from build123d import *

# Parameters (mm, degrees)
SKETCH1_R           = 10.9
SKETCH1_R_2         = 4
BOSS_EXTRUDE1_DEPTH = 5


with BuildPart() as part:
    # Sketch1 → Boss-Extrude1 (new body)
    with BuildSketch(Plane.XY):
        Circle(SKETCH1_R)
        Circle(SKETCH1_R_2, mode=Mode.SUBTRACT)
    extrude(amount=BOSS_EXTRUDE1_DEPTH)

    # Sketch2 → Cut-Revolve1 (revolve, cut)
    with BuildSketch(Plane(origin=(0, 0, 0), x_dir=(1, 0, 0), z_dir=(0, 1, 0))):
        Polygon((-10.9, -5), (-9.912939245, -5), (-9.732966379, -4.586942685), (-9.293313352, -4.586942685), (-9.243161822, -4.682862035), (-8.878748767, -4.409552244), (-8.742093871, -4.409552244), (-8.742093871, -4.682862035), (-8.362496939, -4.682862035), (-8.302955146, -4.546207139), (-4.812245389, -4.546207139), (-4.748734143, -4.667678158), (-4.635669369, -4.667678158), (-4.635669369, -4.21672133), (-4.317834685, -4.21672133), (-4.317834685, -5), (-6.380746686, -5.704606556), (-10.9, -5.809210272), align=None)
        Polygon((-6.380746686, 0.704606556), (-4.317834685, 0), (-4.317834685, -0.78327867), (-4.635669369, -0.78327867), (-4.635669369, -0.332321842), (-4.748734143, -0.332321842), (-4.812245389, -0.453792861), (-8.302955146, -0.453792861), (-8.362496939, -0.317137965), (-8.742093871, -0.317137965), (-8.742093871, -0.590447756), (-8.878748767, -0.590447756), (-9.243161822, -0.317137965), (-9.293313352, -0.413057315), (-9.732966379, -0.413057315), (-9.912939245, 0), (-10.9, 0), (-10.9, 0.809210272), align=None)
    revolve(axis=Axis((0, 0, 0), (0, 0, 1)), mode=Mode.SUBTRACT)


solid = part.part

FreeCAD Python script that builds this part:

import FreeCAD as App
import Part
import Sketcher

V = App.Vector

doc = App.newDocument("Part")
body = doc.addObject("PartDesign::Body", "Body")

# Sketch on XY plane
sketch1 = body.newObject("Sketcher::SketchObject", "Sketch")
sketch1.AttachmentSupport = (doc.getObject("XY_Plane"), [""])
sketch1.MapMode = "FlatFace"
sketch1.addGeometry([
    Part.Circle(V(0, 0, 0), V(0, 0, 1), 10.9),
    Part.Circle(V(0, 0, 0), V(0, 0, 1), 4),
], False)
sketch1.addConstraint([
    Sketcher.Constraint("Coincident", 0, 3, -1, 1),
    Sketcher.Constraint("Coincident", 1, 3, -1, 1),
    Sketcher.Constraint("Diameter", 1, 8.0),
    Sketcher.Constraint("Diameter", 0, 21.8),
])
pad1 = body.newObject("PartDesign::Pad", "Pad")
pad1.Profile = sketch1
pad1.Length = 5

# Sketch on XZ plane
sketch2 = body.newObject("Sketcher::SketchObject", "Sketch001")
sketch2.AttachmentSupport = (doc.getObject("XZ_Plane"), [""])
sketch2.MapMode = "FlatFace"
sketch2.addGeometry([
    Part.LineSegment(V(-9.912939, 5, 0), V(-10.9, 5, 0)),  # 0
    Part.LineSegment(V(-10.9, 5, 0), V(-10.9, 5.80921, 0)),  # 1
    Part.LineSegment(V(-10.9, 5.80921, 0), V(-6.380747, 5.704607, 0)),  # 2
    Part.LineSegment(V(-6.380747, 5.704607, 0), V(-4.317835, 5, 0)),  # 3
    Part.LineSegment(V(-4.317835, 5, 0), V(-4.317835, 4.216721, 0)),  # 4
    Part.LineSegment(V(-4.317835, 4.216721, 0), V(-4.635669, 4.216721, 0)),  # 5
    Part.LineSegment(V(-4.635669, 4.216721, 0), V(-4.635669, 4.667678, 0)),  # 6
    Part.LineSegment(V(-4.635669, 4.667678, 0), V(-4.748734, 4.667678, 0)),  # 7
    Part.LineSegment(V(-4.748734, 4.667678, 0), V(-4.812245, 4.546207, 0)),  # 8
    Part.LineSegment(V(-4.812245, 4.546207, 0), V(-8.302955, 4.546207, 0)),  # 9
    Part.LineSegment(V(-8.302955, 4.546207, 0), V(-8.362497, 4.682862, 0)),  # 10
    Part.LineSegment(V(-8.362497, 4.682862, 0), V(-8.742094, 4.682862, 0)),  # 11
    Part.LineSegment(V(-8.742094, 4.682862, 0), V(-8.742094, 4.409552, 0)),  # 12
    Part.LineSegment(V(-8.742094, 4.409552, 0), V(-8.878749, 4.409552, 0)),  # 13
    Part.LineSegment(V(-8.878749, 4.409552, 0), V(-9.243162, 4.682862, 0)),  # 14
    Part.LineSegment(V(-9.243162, 4.682862, 0), V(-9.293313, 4.586943, 0)),  # 15
    Part.LineSegment(V(-9.293313, 4.586943, 0), V(-9.732966, 4.586943, 0)),  # 16
    Part.LineSegment(V(-9.732966, 4.586943, 0), V(-9.912939, 5, 0)),  # 17
    Part.LineSegment(V(-4.317835, 0, 0), V(-6.380747, -0.704607, 0)),  # 18
    Part.LineSegment(V(-6.380747, -0.704607, 0), V(-10.9, -0.80921, 0)),  # 19
    Part.LineSegment(V(-10.9, -0.80921, 0), V(-10.9, 0, 0)),  # 20
    Part.LineSegment(V(-10.9, 0, 0), V(-9.912939, 0, 0)),  # 21
    Part.LineSegment(V(-9.912939, 0, 0), V(-9.732966, 0.413057, 0)),  # 22
    Part.LineSegment(V(-9.732966, 0.413057, 0), V(-9.293313, 0.413057, 0)),  # 23
    Part.LineSegment(V(-9.293313, 0.413057, 0), V(-9.243162, 0.317138, 0)),  # 24
    Part.LineSegment(V(-9.243162, 0.317138, 0), V(-8.878749, 0.590448, 0)),  # 25
    Part.LineSegment(V(-8.878749, 0.590448, 0), V(-8.742094, 0.590448, 0)),  # 26
    Part.LineSegment(V(-8.742094, 0.590448, 0), V(-8.742094, 0.317138, 0)),  # 27
    Part.LineSegment(V(-8.742094, 0.317138, 0), V(-8.362497, 0.317138, 0)),  # 28
    Part.LineSegment(V(-8.362497, 0.317138, 0), V(-8.302955, 0.453793, 0)),  # 29
    Part.LineSegment(V(-8.302955, 0.453793, 0), V(-4.812245, 0.453793, 0)),  # 30
    Part.LineSegment(V(-4.812245, 0.453793, 0), V(-4.748734, 0.332322, 0)),  # 31
    Part.LineSegment(V(-4.748734, 0.332322, 0), V(-4.635669, 0.332322, 0)),  # 32
    Part.LineSegment(V(-4.635669, 0.332322, 0), V(-4.635669, 0.783279, 0)),  # 33
    Part.LineSegment(V(-4.635669, 0.783279, 0), V(-4.317835, 0.783279, 0)),  # 34
    Part.LineSegment(V(-4.317835, 0.783279, 0), V(-4.317835, 0, 0)),  # 35
], False)
sketch2.addConstraint([
    Sketcher.Constraint("Coincident", 0, 2, 1, 1),
    Sketcher.Constraint("Coincident", 1, 2, 2, 1),
    Sketcher.Constraint("Coincident", 2, 2, 3, 1),
    Sketcher.Constraint("Coincident", 3, 2, 4, 1),
    Sketcher.Constraint("Coincident", 4, 2, 5, 1),
    Sketcher.Constraint("Coincident", 5, 2, 6, 1),
    Sketcher.Constraint("Coincident", 6, 2, 7, 1),
    Sketcher.Constraint("Coincident", 7, 2, 8, 1),
    Sketcher.Constraint("Coincident", 8, 2, 9, 1),
    Sketcher.Constraint("Coincident", 9, 2, 10, 1),
    Sketcher.Constraint("Coincident", 10, 2, 11, 1),
    Sketcher.Constraint("Coincident", 11, 2, 12, 1),
    Sketcher.Constraint("Coincident", 12, 2, 13, 1),
    Sketcher.Constraint("Coincident", 13, 2, 14, 1),
    Sketcher.Constraint("Coincident", 14, 2, 15, 1),
    Sketcher.Constraint("Coincident", 15, 2, 16, 1),
    Sketcher.Constraint("Coincident", 16, 2, 17, 1),
    Sketcher.Constraint("Coincident", 17, 2, 0, 1),
    Sketcher.Constraint("Coincident", 18, 2, 19, 1),
    Sketcher.Constraint("Coincident", 19, 2, 20, 1),
    Sketcher.Constraint("Coincident", 20, 2, 21, 1),
    Sketcher.Constraint("Coincident", 21, 2, 22, 1),
    Sketcher.Constraint("Coincident", 22, 2, 23, 1),
    Sketcher.Constraint("Coincident", 23, 2, 24, 1),
    Sketcher.Constraint("Coincident", 24, 2, 25, 1),
    Sketcher.Constraint("Coincident", 25, 2, 26, 1),
    Sketcher.Constraint("Coincident", 26, 2, 27, 1),
    Sketcher.Constraint("Coincident", 27, 2, 28, 1),
    Sketcher.Constraint("Coincident", 28, 2, 29, 1),
    Sketcher.Constraint("Coincident", 29, 2, 30, 1),
    Sketcher.Constraint("Coincident", 30, 2, 31, 1),
    Sketcher.Constraint("Coincident", 31, 2, 32, 1),
    Sketcher.Constraint("Coincident", 32, 2, 33, 1),
    Sketcher.Constraint("Coincident", 33, 2, 34, 1),
    Sketcher.Constraint("Coincident", 34, 2, 35, 1),
    Sketcher.Constraint("Coincident", 35, 2, 18, 1),
    Sketcher.Constraint("Horizontal", 0),
    Sketcher.Constraint("Vertical", 1),
    Sketcher.Constraint("Vertical", 4),
    Sketcher.Constraint("Horizontal", 5),
    Sketcher.Constraint("Vertical", 6),
    Sketcher.Constraint("Horizontal", 7),
    Sketcher.Constraint("Horizontal", 9),
    Sketcher.Constraint("Horizontal", 11),
    Sketcher.Constraint("Vertical", 12),
    Sketcher.Constraint("Horizontal", 13),
    Sketcher.Constraint("Horizontal", 16),
    Sketcher.Constraint("Vertical", 20),
    Sketcher.Constraint("Horizontal", 21),
    Sketcher.Constraint("Horizontal", 23),
    Sketcher.Constraint("Horizontal", 26),
    Sketcher.Constraint("Vertical", 27),
    Sketcher.Constraint("Horizontal", 28),
    Sketcher.Constraint("Horizontal", 30),
    Sketcher.Constraint("Horizontal", 32),
    Sketcher.Constraint("Vertical", 33),
    Sketcher.Constraint("Horizontal", 34),
    Sketcher.Constraint("Vertical", 35),
    Sketcher.Constraint("PointOnObject", 20, 2, -1),
    Sketcher.Constraint("PointOnObject", 35, 2, -1),
    Sketcher.Constraint("Parallel", 8, 15),
    Sketcher.Constraint("Parallel", 10, 17),
    Sketcher.Constraint("Parallel", 22, 29),
    Sketcher.Constraint("Parallel", 24, 31),
    Sketcher.Constraint("Horizontal", 0, 2, 3, 2),
    Sketcher.Constraint("Horizontal", 11, 2, 14, 2),
    Sketcher.Constraint("Horizontal", 24, 2, 27, 2),
    Sketcher.Constraint("Vertical", 2, 2, 18, 2),
    Sketcher.Constraint("Vertical", 1, 2, 19, 2),
    Sketcher.Constraint("Vertical", 17, 2, 21, 2),
    Sketcher.Constraint("Vertical", 16, 2, 22, 2),
    Sketcher.Constraint("Vertical", 15, 2, 23, 2),
    Sketcher.Constraint("Vertical", 14, 2, 24, 2),
    Sketcher.Constraint("Vertical", 13, 2, 25, 2),
    Sketcher.Constraint("Vertical", 12, 2, 26, 2),
    Sketcher.Constraint("Vertical", 10, 2, 28, 2),
    Sketcher.Constraint("Vertical", 9, 2, 29, 2),
    Sketcher.Constraint("Vertical", 8, 2, 30, 2),
    Sketcher.Constraint("Vertical", 7, 2, 31, 2),
    Sketcher.Constraint("Vertical", 6, 2, 32, 2),
    Sketcher.Constraint("Vertical", 4, 2, 34, 2),
    Sketcher.Constraint("Equal", 1, 20),
    Sketcher.Constraint("Equal", 12, 27),
    Sketcher.Constraint("Equal", 6, 33),
    Sketcher.Constraint("Equal", 4, 35),
    Sketcher.Constraint("Equal", 3, 18),
    Sketcher.Constraint("Equal", 17, 22),
    Sketcher.Constraint("DistanceY", -1, 1, 0, 2, 5.0),
    Sketcher.Constraint("DistanceX", 0, 2, -1, 1, 10.9),
    Sketcher.Constraint("DistanceX", 0, 2, 0, 1, 0.987061),
    Sketcher.Constraint("DistanceX", 9, 2, 9, 1, 3.49071),
    Sketcher.Constraint("DistanceY", 1, 1, 1, 2, 0.80921),
    Sketcher.Constraint("DistanceY", 4, 2, 4, 1, 0.783279),
    Sketcher.Constraint("DistanceY", 12, 2, 12, 1, 0.27331),
    Sketcher.Constraint("DistanceX", 7, 2, 3, 2, 0.430899),
    Sketcher.Constraint("DistanceY", 9, 2, 2, 2, 1.158399),
    Sketcher.Constraint("DistanceX", 18, 2, 8, 2, 1.568501),
    Sketcher.Constraint("DistanceY", 31, 2, 5, 2, 3.884399),
    Sketcher.Constraint("Distance", 15, 0.108239),
    Sketcher.Constraint("DistanceX", 5, 2, 5, 1, 0.317835),
    Sketcher.Constraint("DistanceX", 11, 2, 11, 1, 0.379597),
    Sketcher.Constraint("DistanceX", 13, 2, 13, 1, 0.136655),
    Sketcher.Constraint("DistanceX", 16, 2, 16, 1, 0.439653),
    Sketcher.Constraint("DistanceX", 5, 2, -1, 1, 4.635669),
    Sketcher.Constraint("DistanceX", 13, 2, -1, 1, 8.878749),
    Sketcher.Constraint("DistanceX", 14, 2, -1, 1, 9.243162),
    Sketcher.Constraint("DistanceY", 6, 2, 2, 2, 1.036928),
    Sketcher.Constraint("DistanceX", 8, 2, 7, 2, 0.063511),
])
groove = body.newObject("PartDesign::Groove", "Groove")
groove.Profile = sketch2
groove.ReferenceAxis = (sketch2, ["V_Axis"])
groove.Angle = 360

doc.recompute()
